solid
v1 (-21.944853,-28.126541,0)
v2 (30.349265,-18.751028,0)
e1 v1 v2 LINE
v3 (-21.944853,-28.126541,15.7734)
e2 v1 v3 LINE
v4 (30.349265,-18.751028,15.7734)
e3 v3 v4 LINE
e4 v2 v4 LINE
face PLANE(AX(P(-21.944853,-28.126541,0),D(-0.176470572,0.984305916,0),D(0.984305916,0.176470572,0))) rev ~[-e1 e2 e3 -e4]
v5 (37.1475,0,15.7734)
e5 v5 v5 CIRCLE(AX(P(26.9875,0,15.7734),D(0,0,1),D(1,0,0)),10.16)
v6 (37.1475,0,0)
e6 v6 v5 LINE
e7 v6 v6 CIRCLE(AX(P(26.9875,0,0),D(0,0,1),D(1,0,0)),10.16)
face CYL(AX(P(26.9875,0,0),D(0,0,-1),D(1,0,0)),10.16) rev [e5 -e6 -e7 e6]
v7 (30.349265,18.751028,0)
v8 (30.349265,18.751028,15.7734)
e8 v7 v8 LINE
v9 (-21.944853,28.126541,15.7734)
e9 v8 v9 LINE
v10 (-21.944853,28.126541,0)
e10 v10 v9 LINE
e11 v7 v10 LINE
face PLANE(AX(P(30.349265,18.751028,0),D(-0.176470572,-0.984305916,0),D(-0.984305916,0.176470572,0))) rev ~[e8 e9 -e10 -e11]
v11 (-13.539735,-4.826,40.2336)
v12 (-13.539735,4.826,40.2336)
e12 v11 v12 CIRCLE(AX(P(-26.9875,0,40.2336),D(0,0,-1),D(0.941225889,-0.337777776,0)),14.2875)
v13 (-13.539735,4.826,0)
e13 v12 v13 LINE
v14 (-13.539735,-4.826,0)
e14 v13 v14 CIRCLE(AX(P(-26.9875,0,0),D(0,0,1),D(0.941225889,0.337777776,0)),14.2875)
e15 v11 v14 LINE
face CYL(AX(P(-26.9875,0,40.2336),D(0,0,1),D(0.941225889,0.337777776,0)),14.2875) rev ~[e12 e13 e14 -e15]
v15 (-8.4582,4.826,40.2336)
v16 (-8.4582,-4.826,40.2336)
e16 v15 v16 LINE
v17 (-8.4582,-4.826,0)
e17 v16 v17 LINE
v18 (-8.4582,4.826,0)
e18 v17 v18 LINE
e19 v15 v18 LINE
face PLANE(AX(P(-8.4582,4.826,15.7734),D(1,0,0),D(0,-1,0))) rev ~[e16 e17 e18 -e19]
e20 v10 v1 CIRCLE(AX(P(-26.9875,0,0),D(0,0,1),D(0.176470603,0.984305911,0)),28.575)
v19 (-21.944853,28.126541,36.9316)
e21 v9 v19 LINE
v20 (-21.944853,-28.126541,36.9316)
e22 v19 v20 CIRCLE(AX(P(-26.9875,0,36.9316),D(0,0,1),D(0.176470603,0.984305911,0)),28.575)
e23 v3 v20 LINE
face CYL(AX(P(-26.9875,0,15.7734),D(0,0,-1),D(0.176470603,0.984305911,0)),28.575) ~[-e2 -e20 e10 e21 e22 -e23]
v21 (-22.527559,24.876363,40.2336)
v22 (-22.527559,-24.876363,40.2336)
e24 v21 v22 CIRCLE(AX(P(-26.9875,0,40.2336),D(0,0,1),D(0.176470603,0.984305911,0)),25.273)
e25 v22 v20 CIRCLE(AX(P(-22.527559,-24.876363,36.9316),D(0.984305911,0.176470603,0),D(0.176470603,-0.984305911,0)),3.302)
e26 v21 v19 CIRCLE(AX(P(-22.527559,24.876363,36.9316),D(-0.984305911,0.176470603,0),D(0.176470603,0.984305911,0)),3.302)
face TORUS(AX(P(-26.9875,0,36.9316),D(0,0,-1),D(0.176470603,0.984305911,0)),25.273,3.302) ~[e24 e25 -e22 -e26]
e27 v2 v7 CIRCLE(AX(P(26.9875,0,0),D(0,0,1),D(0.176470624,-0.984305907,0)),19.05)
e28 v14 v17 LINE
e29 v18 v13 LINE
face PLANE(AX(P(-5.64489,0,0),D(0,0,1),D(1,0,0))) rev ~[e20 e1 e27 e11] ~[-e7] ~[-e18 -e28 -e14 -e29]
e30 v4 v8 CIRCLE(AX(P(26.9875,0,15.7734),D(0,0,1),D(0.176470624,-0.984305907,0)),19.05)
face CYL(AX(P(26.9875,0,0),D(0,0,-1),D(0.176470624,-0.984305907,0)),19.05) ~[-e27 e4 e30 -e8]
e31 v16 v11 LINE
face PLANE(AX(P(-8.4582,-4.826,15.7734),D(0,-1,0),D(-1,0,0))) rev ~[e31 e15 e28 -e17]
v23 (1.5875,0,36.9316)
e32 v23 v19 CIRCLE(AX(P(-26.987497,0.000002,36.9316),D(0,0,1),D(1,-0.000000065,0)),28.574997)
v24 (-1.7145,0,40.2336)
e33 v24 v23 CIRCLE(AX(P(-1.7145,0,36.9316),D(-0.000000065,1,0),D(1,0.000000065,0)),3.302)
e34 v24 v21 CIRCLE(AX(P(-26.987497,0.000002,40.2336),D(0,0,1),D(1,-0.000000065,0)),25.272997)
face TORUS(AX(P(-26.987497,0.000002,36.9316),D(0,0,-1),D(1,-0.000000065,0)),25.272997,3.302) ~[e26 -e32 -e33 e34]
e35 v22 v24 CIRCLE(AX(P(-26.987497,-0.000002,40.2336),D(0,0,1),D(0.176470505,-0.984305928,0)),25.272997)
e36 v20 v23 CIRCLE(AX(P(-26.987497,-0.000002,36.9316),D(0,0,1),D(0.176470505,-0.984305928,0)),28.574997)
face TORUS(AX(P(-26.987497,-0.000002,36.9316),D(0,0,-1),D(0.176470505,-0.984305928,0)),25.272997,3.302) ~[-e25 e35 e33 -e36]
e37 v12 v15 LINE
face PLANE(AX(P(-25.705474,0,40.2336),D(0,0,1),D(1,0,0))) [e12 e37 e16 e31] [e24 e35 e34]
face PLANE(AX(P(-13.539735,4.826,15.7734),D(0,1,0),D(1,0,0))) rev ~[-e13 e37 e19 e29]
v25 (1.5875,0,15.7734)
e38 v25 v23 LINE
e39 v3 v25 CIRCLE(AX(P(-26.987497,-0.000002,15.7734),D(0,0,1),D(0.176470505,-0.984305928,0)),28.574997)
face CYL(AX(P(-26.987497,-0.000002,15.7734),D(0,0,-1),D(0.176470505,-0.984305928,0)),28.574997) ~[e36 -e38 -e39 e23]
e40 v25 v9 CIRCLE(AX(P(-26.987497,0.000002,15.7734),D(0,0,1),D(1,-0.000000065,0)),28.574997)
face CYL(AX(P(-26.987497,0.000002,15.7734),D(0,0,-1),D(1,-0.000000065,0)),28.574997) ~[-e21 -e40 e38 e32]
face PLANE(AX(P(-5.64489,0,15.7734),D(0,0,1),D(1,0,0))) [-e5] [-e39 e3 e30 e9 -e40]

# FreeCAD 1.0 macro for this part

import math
import FreeCAD as App
import Part
import Sketcher

V = App.Vector
Q = App.Units.Quantity


def edges_at(feature, points):
    """Names of the edges that pass closest to the given points."""
    edges = feature.Shape.Edges
    near = lambda p: min(range(len(edges)), key=lambda i: edges[i].distToShape(Part.Vertex(*p))[0])
    return sorted({f"Edge{near(p) + 1}" for p in points})

doc = App.newDocument("Part")
body = doc.addObject("PartDesign::Body", "Body")

# Sketch on XY plane
sketch1 = doc.addObject("Sketcher::SketchObject", "Sketch")
body.addObject(sketch1)
sketch1.AttachmentSupport = (doc.XY_Plane, [""])
sketch1.MapMode = "FlatFace"
sketch1.addGeometry(Part.LineSegment(V(30.349265, 18.751028, 0), V(-21.944853, 28.126541, 0)), False)
sketch1.addGeometry(Part.ArcOfCircle(Part.Circle(V(-26.9875, 0, 0), V(0, 0, 1), 28.575), math.radians(79.835751), math.radians(280.164249)), False)
sketch1.addGeometry(Part.LineSegment(V(-21.944853, -28.126541, 0), V(30.349265, -18.751028, 0)), False)
sketch1.addGeometry(Part.ArcOfCircle(Part.Circle(V(26.9875, 0, 0), V(0, 0, 1), 19.05), math.radians(-79.835749), math.radians(79.835749)), False)
sketch1.addGeometry(Part.Circle(V(26.9875, 0, 0), V(0, 0, 1), 10.16), False)
sketch1.addConstraint(Sketcher.Constraint("Tangent", 0, 2, 1, 1))
sketch1.addConstraint(Sketcher.Constraint("Tangent", 1, 2, 2, 1))
sketch1.addConstraint(Sketcher.Constraint("Tangent", 2, 2, 3, 1))
sketch1.addConstraint(Sketcher.Constraint("Tangent", 3, 2, 0, 1))
sketch1.addConstraint(Sketcher.Constraint("Coincident", 4, 3, 3, 3))
sketch1.addConstraint(Sketcher.Constraint("Symmetric", 1, 3, 3, 3, -1, 1))
sketch1.addConstraint(Sketcher.Constraint("PointOnObject", 1, 3, -1))
sketch1.addConstraint(Sketcher.Constraint("Diameter", 4, Q("0.8 in")))
sketch1.addConstraint(Sketcher.Constraint("Radius", 3, Q("0.75 in")))
sketch1.addConstraint(Sketcher.Constraint("Radius", 1, Q("1.125 in")))
sketch1.addConstraint(Sketcher.Constraint("DistanceX", 1, 3, -1, 1, Q("1.0625 in")))
pad1 = doc.addObject("PartDesign::Pad", "Pad")
body.addObject(pad1)
pad1.Profile = sketch1
pad1.Length = Q("0.621 in")

# Sketch on XY plane
sketch2 = doc.addObject("Sketcher::SketchObject", "Sketch001")
body.addObject(sketch2)
sketch2.AttachmentSupport = (doc.XY_Plane, [""])
sketch2.MapMode = "FlatFace"
sketch2.AttachmentOffset = App.Placement(V(0, 0, 0.621 * 25.4), App.Rotation())
sketch2.addGeometry(Part.ArcOfCircle(Part.Circle(V(-26.987497, -0.000002, 0), V(0, 0, 1), 28.574997), math.radians(-79.835756), math.radians(0.000004)), False)
sketch2.addGeometry(Part.ArcOfCircle(Part.Circle(V(-26.987497, 0.000002, 0), V(0, 0, 1), 28.574997), math.radians(-0.000004), math.radians(79.835756)), False)
sketch2.addGeometry(Part.ArcOfCircle(Part.Circle(V(-26.9875, 0, 0), V(0, 0, 1), 28.575), math.radians(79.835751), math.radians(280.164249)), False)
sketch2.addGeometry(Part.LineSegment(V(-8.4582, -4.826, 0), V(-13.539735, -4.826, 0)), False)
sketch2.addGeometry(Part.ArcOfCircle(Part.Circle(V(-26.9875, 0, 0), V(0, 0, 1), 14.2875), math.radians(19.741542), math.radians(340.258458)), False)
sketch2.addGeometry(Part.LineSegment(V(-13.539735, 4.826, 0), V(-8.4582, 4.826, 0)), False)
sketch2.addGeometry(Part.LineSegment(V(-8.4582, 4.826, 0), V(-8.4582, -4.826, 0)), False)
sketch2.addConstraint(Sketcher.Constraint("Tangent", 0, 2, 1, 1))
sketch2.addConstraint(Sketcher.Constraint("Tangent", 1, 2, 2, 1))
sketch2.addConstraint(Sketcher.Constraint("Tangent", 2, 2, 0, 1))
sketch2.addConstraint(Sketcher.Constraint("Coincident", 3, 2, 4, 2))
sketch2.addConstraint(Sketcher.Constraint("Coincident", 4, 1, 5, 1))
sketch2.addConstraint(Sketcher.Constraint("Coincident", 5, 2, 6, 1))
sketch2.addConstraint(Sketcher.Constraint("Coincident", 6, 2, 3, 1))
sketch2.addConstraint(Sketcher.Constraint("Horizontal", 3))
sketch2.addConstraint(Sketcher.Constraint("Horizontal", 5))
sketch2.addConstraint(Sketcher.Constraint("Vertical", 6))
sketch2.addConstraint(Sketcher.Constraint("Coincident", 4, 3, 0, 3))
sketch2.addConstraint(Sketcher.Constraint("Symmetric", 1, 2, 2, 2, -1))
sketch2.addConstraint(Sketcher.Constraint("PointOnObject", 0, 2, -1))
sketch2.addConstraint(Sketcher.Constraint("Vertical", 3, 2, 4, 1))
sketch2.addConstraint(Sketcher.Constraint("Radius", 0, Q("1.1249999 in")))
sketch2.addConstraint(Sketcher.Constraint("Radius", 4, Q("0.5625 in")))
sketch2.addConstraint(Sketcher.Constraint("DistanceY", 6, 2, 6, 1, Q("0.38 in")))
sketch2.addConstraint(Sketcher.Constraint("DistanceX", 0, 3, -1, 1, Q("1.0624999 in")))
sketch2.addConstraint(Sketcher.Constraint("DistanceX", 5, 2, -1, 1, Q("0.333 in")))
sketch2.addConstraint(Sketcher.Constraint("DistanceY", -1, 1, 1, 2, Q("28.126541 mm")))
pad2 = doc.addObject("PartDesign::Pad", "Pad001")
body.addObject(pad2)
pad2.Profile = sketch2
pad2.Length = Q("0.963 in")

# Sketch on XY plane
sketch3 = doc.addObject("Sketcher::SketchObject", "Sketch002")
body.addObject(sketch3)
sketch3.AttachmentSupport = (doc.XY_Plane, [""])
sketch3.MapMode = "FlatFace"
sketch3.AttachmentOffset = App.Placement(V(0, 0, 1.584 * 25.4), App.Rotation())
sketch3.addGeometry(Part.LineSegment(V(-8.4582, 4.826, 0), V(-13.539735, 4.826, 0)), False)
sketch3.addGeometry(Part.ArcOfCircle(Part.Circle(V(-26.9875, 0, 0), V(0, 0, 1), 14.2875), math.radians(19.741542), math.radians(340.258458)), False)
sketch3.addGeometry(Part.LineSegment(V(-13.539735, -4.826, 0), V(-8.4582, -4.826, 0)), False)
sketch3.addGeometry(Part.LineSegment(V(-8.4582, -4.826, 0), V(-8.4582, 4.826, 0)), False)
sketch3.addConstraint(Sketcher.Constraint("Coincident", 0, 2, 1, 1))
sketch3.addConstraint(Sketcher.Constraint("Coincident", 1, 2, 2, 1))
sketch3.addConstraint(Sketcher.Constraint("Coincident", 2, 2, 3, 1))
sketch3.addConstraint(Sketcher.Constraint("Coincident", 3, 2, 0, 1))
sketch3.addConstraint(Sketcher.Constraint("Horizontal", 0))
sketch3.addConstraint(Sketcher.Constraint("Horizontal", 2))
sketch3.addConstraint(Sketcher.Constraint("Vertical", 3))
sketch3.addConstraint(Sketcher.Constraint("Symmetric", 0, 2, 1, 2, -1))
sketch3.addConstraint(Sketcher.Constraint("Radius", 1, Q("0.5625 in")))
sketch3.addConstraint(Sketcher.Constraint("DistanceY", 3, 1, 3, 2, Q("0.38 in")))
sketch3.addConstraint(Sketcher.Constraint("DistanceX", 1, 3, -1, 1, Q("1.0625 in")))
sketch3.addConstraint(Sketcher.Constraint("DistanceX", 2, 2, -1, 1, Q("0.333 in")))
pocket1 = doc.addObject("PartDesign::Pocket", "Pocket")
body.addObject(pocket1)
pocket1.Profile = sketch3
pocket1.Type = "ThroughAll"
doc.recompute()

fillet = doc.addObject("PartDesign::Fillet", "Fillet")
body.addObject(fillet)
fillet.Base = (pocket1, edges_at(pocket1, [(-55.562, 0, 40.234)]))
fillet.Radius = Q("0.13 in")

doc.recompute()
